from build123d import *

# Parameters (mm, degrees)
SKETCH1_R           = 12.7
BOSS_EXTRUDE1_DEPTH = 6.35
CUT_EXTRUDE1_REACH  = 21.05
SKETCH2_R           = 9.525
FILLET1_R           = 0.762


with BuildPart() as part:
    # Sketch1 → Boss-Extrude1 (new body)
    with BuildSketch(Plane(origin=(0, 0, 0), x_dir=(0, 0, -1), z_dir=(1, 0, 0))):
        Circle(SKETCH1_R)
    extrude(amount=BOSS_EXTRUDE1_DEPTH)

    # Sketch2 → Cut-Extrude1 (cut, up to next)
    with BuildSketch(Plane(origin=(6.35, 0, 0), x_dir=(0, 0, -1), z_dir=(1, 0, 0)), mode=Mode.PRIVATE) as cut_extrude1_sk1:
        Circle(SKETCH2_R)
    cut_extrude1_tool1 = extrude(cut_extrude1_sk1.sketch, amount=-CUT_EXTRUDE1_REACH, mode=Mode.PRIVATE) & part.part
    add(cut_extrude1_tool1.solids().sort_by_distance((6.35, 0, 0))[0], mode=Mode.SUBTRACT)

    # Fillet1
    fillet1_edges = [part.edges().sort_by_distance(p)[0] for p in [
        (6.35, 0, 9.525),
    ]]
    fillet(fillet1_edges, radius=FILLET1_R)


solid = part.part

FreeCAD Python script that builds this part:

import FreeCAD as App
import Part
import Sketcher

V = App.Vector
Q = App.Units.Quantity


def edges_at(feature, points):
    """Names of the edges that pass closest to the given points."""
    edges = feature.Shape.Edges
    near = lambda p: min(range(len(edges)), key=lambda i: edges[i].distToShape(Part.Vertex(*p))[0])
    return sorted({f"Edge{near(p) + 1}" for p in points})

doc = App.newDocument("Part")
body = doc.addObject("PartDesign::Body", "Body")

# Sketch on YZ plane
sketch1 = body.newObject("Sketcher::SketchObject", "Sketch")
sketch1.AttachmentSupport = (doc.getObject("YZ_Plane"), [""])
sketch1.MapMode = "FlatFace"
sketch1.addGeometry(Part.Circle(V(0, 0, 0), V(0, 0, 1), 13), False)
sketch1.addConstraint(Sketcher.Constraint("Coincident", 0, 3, -1, 1))
sketch1.addConstraint(Sketcher.Constraint("Diameter", 0, Q("1 in")))
pad1 = body.newObject("PartDesign::Pad", "Pad")
pad1.Profile = sketch1
pad1.Length = Q("0.25 in")

# Sketch on YZ plane
sketch2 = body.newObject("Sketcher::SketchObject", "Sketch001")
sketch2.AttachmentSupport = (doc.getObject("YZ_Plane"), [""])
sketch2.MapMode = "FlatFace"
sketch2.AttachmentOffset = App.Placement(V(0, 0, 0.25 * 25.4), App.Rotation())
sketch2.addGeometry(Part.Circle(V(0, 0, 0), V(0, 0, 1), 10), False)
sketch2.addConstraint(Sketcher.Constraint("Coincident", 0, 3, -1, 1))
sketch2.addConstraint(Sketcher.Constraint("Diameter", 0, Q("0.75 in")))
pocket1 = body.newObject("PartDesign::Pocket", "Pocket")
pocket1.Profile = sketch2
pocket1.Type = "UpToFirst"
doc.recompute()

fillet = body.newObject("PartDesign::Fillet", "Fillet")
fillet.Base = (pocket1, edges_at(pocket1, [(6.35, 0, 9.525)]))
fillet.Radius = Q("0.03 in")

doc.recompute()
